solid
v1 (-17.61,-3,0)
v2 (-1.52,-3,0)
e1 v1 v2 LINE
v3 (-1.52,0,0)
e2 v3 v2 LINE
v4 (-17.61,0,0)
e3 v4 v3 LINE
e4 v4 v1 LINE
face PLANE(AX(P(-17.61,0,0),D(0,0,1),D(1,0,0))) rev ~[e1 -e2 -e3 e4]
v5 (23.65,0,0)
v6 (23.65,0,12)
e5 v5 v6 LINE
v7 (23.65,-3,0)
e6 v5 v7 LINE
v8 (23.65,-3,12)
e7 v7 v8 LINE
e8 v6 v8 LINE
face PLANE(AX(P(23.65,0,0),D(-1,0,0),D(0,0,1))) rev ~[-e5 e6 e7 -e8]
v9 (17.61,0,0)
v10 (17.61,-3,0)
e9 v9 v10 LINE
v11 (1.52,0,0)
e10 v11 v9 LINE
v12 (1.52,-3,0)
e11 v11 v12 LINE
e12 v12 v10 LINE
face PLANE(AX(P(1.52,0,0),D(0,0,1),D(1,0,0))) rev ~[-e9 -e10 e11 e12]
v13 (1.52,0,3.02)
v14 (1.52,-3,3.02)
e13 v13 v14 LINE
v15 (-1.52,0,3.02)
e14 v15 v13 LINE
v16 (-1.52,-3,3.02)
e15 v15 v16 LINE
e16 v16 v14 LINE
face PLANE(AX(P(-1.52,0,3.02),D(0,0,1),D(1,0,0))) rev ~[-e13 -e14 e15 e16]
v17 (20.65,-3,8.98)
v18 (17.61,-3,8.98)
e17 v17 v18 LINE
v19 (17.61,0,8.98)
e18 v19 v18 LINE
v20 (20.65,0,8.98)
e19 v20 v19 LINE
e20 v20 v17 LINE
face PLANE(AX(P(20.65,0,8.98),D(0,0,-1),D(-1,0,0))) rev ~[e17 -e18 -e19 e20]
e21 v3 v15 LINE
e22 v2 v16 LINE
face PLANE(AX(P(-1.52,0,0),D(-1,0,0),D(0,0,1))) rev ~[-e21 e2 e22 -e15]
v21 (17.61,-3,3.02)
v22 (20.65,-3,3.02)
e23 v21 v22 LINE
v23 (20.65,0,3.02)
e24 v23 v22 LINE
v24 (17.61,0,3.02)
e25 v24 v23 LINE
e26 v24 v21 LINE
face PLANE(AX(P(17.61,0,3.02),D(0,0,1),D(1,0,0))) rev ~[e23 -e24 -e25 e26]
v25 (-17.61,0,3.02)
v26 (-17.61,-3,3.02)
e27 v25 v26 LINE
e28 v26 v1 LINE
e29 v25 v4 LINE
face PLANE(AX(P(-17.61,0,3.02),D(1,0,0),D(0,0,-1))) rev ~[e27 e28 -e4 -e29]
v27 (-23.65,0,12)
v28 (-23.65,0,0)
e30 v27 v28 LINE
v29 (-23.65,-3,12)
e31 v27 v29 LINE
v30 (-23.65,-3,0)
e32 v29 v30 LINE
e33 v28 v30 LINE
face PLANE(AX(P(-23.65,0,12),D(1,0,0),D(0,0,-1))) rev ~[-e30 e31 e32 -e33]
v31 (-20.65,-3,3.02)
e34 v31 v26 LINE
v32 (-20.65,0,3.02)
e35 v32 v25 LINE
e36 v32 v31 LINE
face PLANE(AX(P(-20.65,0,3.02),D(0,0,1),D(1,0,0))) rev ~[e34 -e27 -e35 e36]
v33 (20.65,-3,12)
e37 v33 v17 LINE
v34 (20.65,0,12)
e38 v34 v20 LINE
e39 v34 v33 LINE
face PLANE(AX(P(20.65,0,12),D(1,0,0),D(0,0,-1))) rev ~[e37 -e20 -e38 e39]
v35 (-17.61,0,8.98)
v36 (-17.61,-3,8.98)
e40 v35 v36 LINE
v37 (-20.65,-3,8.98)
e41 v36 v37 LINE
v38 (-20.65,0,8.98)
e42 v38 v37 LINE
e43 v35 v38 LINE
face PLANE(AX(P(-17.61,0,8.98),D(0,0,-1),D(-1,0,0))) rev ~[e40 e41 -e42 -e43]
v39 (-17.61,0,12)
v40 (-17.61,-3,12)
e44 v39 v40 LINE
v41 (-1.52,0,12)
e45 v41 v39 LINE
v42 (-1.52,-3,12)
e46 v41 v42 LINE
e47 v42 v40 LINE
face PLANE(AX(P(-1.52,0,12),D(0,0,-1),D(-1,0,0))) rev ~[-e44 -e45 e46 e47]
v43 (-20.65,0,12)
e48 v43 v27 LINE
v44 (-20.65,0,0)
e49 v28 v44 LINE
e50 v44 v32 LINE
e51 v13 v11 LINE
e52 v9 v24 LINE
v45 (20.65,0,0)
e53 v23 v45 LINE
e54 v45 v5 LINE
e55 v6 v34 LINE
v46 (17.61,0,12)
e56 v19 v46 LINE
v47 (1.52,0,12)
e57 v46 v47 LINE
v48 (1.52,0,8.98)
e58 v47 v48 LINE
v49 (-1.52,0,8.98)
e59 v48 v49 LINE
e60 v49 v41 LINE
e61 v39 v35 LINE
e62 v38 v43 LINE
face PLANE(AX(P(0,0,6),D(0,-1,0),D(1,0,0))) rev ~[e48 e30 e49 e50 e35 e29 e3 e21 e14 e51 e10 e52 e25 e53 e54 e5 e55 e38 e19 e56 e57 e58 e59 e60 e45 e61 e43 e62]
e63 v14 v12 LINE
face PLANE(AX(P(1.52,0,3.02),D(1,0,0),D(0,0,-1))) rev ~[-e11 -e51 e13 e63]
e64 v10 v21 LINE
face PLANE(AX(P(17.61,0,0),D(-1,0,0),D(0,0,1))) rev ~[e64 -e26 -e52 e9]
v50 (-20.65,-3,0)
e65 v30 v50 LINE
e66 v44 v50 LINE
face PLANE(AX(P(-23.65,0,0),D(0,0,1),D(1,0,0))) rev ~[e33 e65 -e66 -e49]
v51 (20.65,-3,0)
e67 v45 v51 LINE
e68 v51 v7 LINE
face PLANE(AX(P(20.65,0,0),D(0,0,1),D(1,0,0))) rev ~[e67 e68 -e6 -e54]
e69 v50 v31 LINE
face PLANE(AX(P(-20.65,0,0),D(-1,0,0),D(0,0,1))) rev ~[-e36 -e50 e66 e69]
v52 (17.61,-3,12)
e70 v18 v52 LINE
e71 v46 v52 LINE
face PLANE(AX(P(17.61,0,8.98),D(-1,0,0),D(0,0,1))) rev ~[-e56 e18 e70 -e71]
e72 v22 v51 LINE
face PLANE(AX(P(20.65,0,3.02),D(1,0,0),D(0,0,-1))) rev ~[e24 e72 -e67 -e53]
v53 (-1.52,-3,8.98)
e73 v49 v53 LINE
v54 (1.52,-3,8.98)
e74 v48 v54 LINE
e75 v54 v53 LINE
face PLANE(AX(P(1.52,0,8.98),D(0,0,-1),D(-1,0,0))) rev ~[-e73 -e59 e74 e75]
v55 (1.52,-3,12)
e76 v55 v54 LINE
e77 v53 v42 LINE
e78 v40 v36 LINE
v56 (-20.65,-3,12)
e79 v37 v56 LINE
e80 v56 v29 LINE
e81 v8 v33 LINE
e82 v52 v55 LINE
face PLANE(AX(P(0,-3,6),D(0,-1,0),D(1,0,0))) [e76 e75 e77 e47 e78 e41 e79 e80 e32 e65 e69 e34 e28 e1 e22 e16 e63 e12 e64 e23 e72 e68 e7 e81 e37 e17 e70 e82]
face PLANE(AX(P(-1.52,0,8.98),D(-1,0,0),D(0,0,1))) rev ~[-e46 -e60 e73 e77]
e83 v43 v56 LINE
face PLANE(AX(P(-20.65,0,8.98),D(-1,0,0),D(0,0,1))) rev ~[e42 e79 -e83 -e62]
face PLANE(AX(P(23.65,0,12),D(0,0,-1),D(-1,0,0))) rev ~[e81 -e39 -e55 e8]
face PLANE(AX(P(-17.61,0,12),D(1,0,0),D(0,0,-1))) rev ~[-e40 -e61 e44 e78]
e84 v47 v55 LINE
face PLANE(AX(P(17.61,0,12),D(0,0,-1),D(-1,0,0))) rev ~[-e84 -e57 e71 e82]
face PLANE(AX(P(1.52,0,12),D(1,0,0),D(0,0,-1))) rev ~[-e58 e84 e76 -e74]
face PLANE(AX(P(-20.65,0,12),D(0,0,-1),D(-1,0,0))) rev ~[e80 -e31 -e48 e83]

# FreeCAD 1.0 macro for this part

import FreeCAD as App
import Part
import Sketcher
from FreeCAD import Vector


def add_polygon(sketch, points):
    """Adds a closed chain of lines whose ends are joined by coincident constraints."""
    first, n = sketch.GeometryCount, len(points)
    for a, b in zip(points, points[1:] + points[:1]):
        sketch.addGeometry(Part.LineSegment(App.Vector(*a, 0), App.Vector(*b, 0)), False)
    for i in range(n):
        sketch.addConstraint(Sketcher.Constraint("Coincident", first + i, 2, first + (i + 1) % n, 1))

doc = App.newDocument("Part")
params = doc.addObject("Spreadsheet::Sheet", "Params")
for row, (alias, value) in enumerate([
    ("sketch1_width", "3 mm"),
    ("sketch1_height", "12 mm"),
    ("sketch1_width2", "3.04 mm"),
    ("sketch1_width3", "16.09 mm"),
    ("sketch1_height2", "3.02 mm"),
    ("pad1_length", "3 mm"),
], start=1):
    params.set(f"A{row}", alias)
    params.set(f"B{row}", "=" + value)
    params.setAlias(f"B{row}", alias)

body = doc.addObject("PartDesign::Body", "Body")

sketch1 = doc.addObject("Sketcher::SketchObject", "Sketch")
body.addObject(sketch1)
sketch1.AttachmentSupport = (doc.XZ_Plane, [""])
sketch1.MapMode = "FlatFace"
add_polygon(sketch1, [(-23.6, 0), (-20.6, 0), (-20.6, 3), (-17.6, 3), (-17.6, 0), (-1.5, 0), (-1.5, 3), (1.5, 3), (1.5, 0), (17.6, 0), (17.6, 3), (20.6, 3), (20.6, 0), (23.6, 0), (23.6, 12), (20.6, 12), (20.6, 9), (17.6, 9), (17.6, 12), (1.5, 12), (1.5, 9), (-1.5, 9), (-1.5, 12), (-17.6, 12), (-17.6, 9), (-20.6, 9), (-20.6, 12), (-23.6, 12)])
sketch1.addConstraint(Sketcher.Constraint("Horizontal", 0))
sketch1.addConstraint(Sketcher.Constraint("Vertical", 1))
sketch1.addConstraint(Sketcher.Constraint("Horizontal", 2))
sketch1.addConstraint(Sketcher.Constraint("Vertical", 3))
sketch1.addConstraint(Sketcher.Constraint("Horizontal", 4))
sketch1.addConstraint(Sketcher.Constraint("Vertical", 5))
sketch1.addConstraint(Sketcher.Constraint("Horizontal", 6))
sketch1.addConstraint(Sketcher.Constraint("Vertical", 7))
sketch1.addConstraint(Sketcher.Constraint("Horizontal", 8))
sketch1.addConstraint(Sketcher.Constraint("Vertical", 9))
sketch1.addConstraint(Sketcher.Constraint("Horizontal", 10))
sketch1.addConstraint(Sketcher.Constraint("Vertical", 11))
sketch1.addConstraint(Sketcher.Constraint("Horizontal", 12))
sketch1.addConstraint(Sketcher.Constraint("Vertical", 13))
sketch1.addConstraint(Sketcher.Constraint("Horizontal", 14))
sketch1.addConstraint(Sketcher.Constraint("Vertical", 15))
sketch1.addConstraint(Sketcher.Constraint("Horizontal", 16))
sketch1.addConstraint(Sketcher.Constraint("Vertical", 17))
sketch1.addConstraint(Sketcher.Constraint("Horizontal", 18))
sketch1.addConstraint(Sketcher.Constraint("Vertical", 19))
sketch1.addConstraint(Sketcher.Constraint("Horizontal", 20))
sketch1.addConstraint(Sketcher.Constraint("Vertical", 21))
sketch1.addConstraint(Sketcher.Constraint("Horizontal", 22))
sketch1.addConstraint(Sketcher.Constraint("Vertical", 23))
sketch1.addConstraint(Sketcher.Constraint("Horizontal", 24))
sketch1.addConstraint(Sketcher.Constraint("Vertical", 25))
sketch1.addConstraint(Sketcher.Constraint("Horizontal", 26))
sketch1.addConstraint(Sketcher.Constraint("Vertical", 27))
sketch1.addConstraint(Sketcher.Constraint("Symmetric", 4, 2, 7, 2, -1, 1))
sketch1.addConstraint(Sketcher.Constraint("Symmetric", 0, 2, 11, 2, -1, 1))
sketch1.addConstraint(Sketcher.Constraint("Symmetric", 3, 2, 8, 2, -2))
sketch1.addConstraint(Sketcher.Constraint("Symmetric", 18, 2, 21, 2, -2))
sketch1.addConstraint(Sketcher.Constraint("Symmetric", 16, 2, 23, 2, -2))
sketch1.addConstraint(Sketcher.Constraint("Symmetric", 14, 2, 25, 2, -2))
sketch1.addConstraint(Sketcher.Constraint("Symmetric", 12, 2, 27, 2, -2))
sketch1.addConstraint(Sketcher.Constraint("Horizontal", 2, 2, 5, 2))
sketch1.addConstraint(Sketcher.Constraint("Horizontal", 6, 2, 9, 2))
sketch1.addConstraint(Sketcher.Constraint("Horizontal", 14, 2, 17, 2))
sketch1.addConstraint(Sketcher.Constraint("Horizontal", 16, 2, 19, 2))
sketch1.addConstraint(Sketcher.Constraint("Vertical", 11, 2, 14, 2))
sketch1.addConstraint(Sketcher.Constraint("Vertical", 9, 2, 16, 2))
sketch1.addConstraint(Sketcher.Constraint("Vertical", 7, 2, 18, 2))
sketch1.addConstraint(Sketcher.Constraint("Equal", 2, 6))
sketch1.addConstraint(Sketcher.Constraint("Equal", 11, 15))
sketch1.addConstraint(Sketcher.Constraint("DistanceX", 0, 1, 0, 2, 3.0))
sketch1.addConstraint(Sketcher.Constraint("DistanceY", 13, 1, 13, 2, 12.0))
sketch1.addConstraint(Sketcher.Constraint("DistanceX", 2, 1, 2, 2, 3.04))
sketch1.addConstraint(Sketcher.Constraint("DistanceX", 4, 1, 4, 2, 16.09))
sketch1.addConstraint(Sketcher.Constraint("DistanceY", 1, 1, 1, 2, 3.02))
sketch1.setExpression("Constraints[72]", "Params.sketch1_width")
sketch1.setExpression("Constraints[73]", "Params.sketch1_height")
sketch1.setExpression("Constraints[74]", "Params.sketch1_width2")
sketch1.setExpression("Constraints[75]", "Params.sketch1_width3")
sketch1.setExpression("Constraints[76]", "Params.sketch1_height2")
pad1 = doc.addObject("PartDesign::Pad", "Pad")
body.addObject(pad1)
pad1.Profile = sketch1
pad1.setExpression("Length", "Params.pad1_length")

doc.recompute()
